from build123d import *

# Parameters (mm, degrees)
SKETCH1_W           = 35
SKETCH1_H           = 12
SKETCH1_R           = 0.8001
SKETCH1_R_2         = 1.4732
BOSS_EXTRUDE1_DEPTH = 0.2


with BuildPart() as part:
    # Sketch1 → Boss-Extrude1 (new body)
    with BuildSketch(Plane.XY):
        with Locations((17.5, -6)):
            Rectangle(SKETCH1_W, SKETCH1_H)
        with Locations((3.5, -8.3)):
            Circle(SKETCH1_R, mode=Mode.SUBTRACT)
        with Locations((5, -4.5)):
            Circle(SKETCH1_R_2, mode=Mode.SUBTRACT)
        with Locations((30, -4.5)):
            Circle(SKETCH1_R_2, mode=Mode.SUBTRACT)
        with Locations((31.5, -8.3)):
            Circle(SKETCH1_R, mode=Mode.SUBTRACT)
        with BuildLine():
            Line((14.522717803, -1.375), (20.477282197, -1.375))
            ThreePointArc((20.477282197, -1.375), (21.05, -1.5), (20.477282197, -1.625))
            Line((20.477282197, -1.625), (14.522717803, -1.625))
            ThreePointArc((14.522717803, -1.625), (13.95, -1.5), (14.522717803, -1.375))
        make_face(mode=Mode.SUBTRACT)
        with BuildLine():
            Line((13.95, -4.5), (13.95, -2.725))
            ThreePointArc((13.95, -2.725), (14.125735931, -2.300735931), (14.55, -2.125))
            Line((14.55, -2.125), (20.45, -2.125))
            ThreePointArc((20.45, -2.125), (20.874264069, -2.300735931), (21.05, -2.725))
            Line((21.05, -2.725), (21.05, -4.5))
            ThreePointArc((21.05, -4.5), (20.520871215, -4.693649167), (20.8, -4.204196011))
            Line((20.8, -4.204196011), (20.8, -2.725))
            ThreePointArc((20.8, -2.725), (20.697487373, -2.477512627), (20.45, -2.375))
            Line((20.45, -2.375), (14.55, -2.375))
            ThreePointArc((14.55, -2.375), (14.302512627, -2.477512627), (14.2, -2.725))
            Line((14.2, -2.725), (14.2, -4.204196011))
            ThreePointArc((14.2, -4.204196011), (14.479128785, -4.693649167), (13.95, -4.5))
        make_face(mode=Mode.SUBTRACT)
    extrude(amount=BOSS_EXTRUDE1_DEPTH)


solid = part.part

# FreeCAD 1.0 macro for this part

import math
import FreeCAD as App
import Part
import Sketcher
from FreeCAD import Vector
Q = App.Units.Quantity


def add_polygon(sketch, points):
    """Adds a closed chain of lines whose ends are joined by coincident constraints."""
    first, n = sketch.GeometryCount, len(points)
    for a, b in zip(points, points[1:] + points[:1]):
        sketch.addGeometry(Part.LineSegment(App.Vector(*a, 0), App.Vector(*b, 0)), False)
    for i in range(n):
        sketch.addConstraint(Sketcher.Constraint("Coincident", first + i, 2, first + (i + 1) % n, 1))

doc = App.newDocument("Part")
body = doc.addObject("PartDesign::Body", "Body")

# Sketch on XY plane
sketch1 = body.newObject("Sketcher::SketchObject", "Sketch")
sketch1.AttachmentSupport = (doc.getObject("XY_Plane"), [""])
sketch1.MapMode = "FlatFace"
add_polygon(sketch1, [(0, 0), (0, -12), (35, -12), (35, 0)])  # lines 0-3
sketch1.addGeometry(Part.Circle(Vector(3.5, -8.3, 0), Vector(0, 0, 1), 0.8001), False)  # 4
sketch1.addGeometry(Part.Circle(Vector(31.5, -8.3, 0), Vector(0, 0, 1), 0.8001), False)  # 5
sketch1.addGeometry(Part.Circle(Vector(5, -4.5, 0), Vector(0, 0, 1), 1.4732), False)  # 6
sketch1.addGeometry(Part.ArcOfCircle(Part.Circle(Vector(14.25, -4.5, 0), Vector(0, 0, 1), 0.3), math.radians(180), math.radians(459.594068)), False)  # 7
sketch1.addGeometry(Part.LineSegment(Vector(13.95, -4.5, 0), Vector(13.95, -2.725, 0)), False)  # 8
sketch1.addGeometry(Part.ArcOfCircle(Part.Circle(Vector(14.55, -2.725, 0), Vector(0, 0, 1), 0.6), math.radians(90), math.radians(180)), False)  # 9
sketch1.addGeometry(Part.LineSegment(Vector(14.55, -2.125, 0), Vector(20.45, -2.125, 0)), False)  # 10
sketch1.addGeometry(Part.ArcOfCircle(Part.Circle(Vector(20.45, -2.725, 0), Vector(0, 0, 1), 0.6), math.radians(0), math.radians(90)), False)  # 11
sketch1.addGeometry(Part.LineSegment(Vector(21.05, -2.725, 0), Vector(21.05, -4.5, 0)), False)  # 12
sketch1.addGeometry(Part.ArcOfCircle(Part.Circle(Vector(20.75, -4.5, 0), Vector(0, 0, 1), 0.3), math.radians(80.405932), math.radians(360)), False)  # 13
sketch1.addGeometry(Part.LineSegment(Vector(20.8, -4.204196, 0), Vector(20.8, -2.725, 0)), False)  # 14
sketch1.addGeometry(Part.ArcOfCircle(Part.Circle(Vector(20.45, -2.725, 0), Vector(0, 0, 1), 0.35), math.radians(0), math.radians(90)), False)  # 15
sketch1.addGeometry(Part.LineSegment(Vector(20.45, -2.375, 0), Vector(14.55, -2.375, 0)), False)  # 16
sketch1.addGeometry(Part.ArcOfCircle(Part.Circle(Vector(14.55, -2.725, 0), Vector(0, 0, 1), 0.35), math.radians(90), math.radians(180)), False)  # 17
sketch1.addGeometry(Part.LineSegment(Vector(14.2, -2.725, 0), Vector(14.2, -4.204196, 0)), False)  # 18
sketch1.addGeometry(Part.Circle(Vector(30, -4.5, 0), Vector(0, 0, 1), 1.4732), False)  # 19
sketch1.addGeometry(Part.ArcOfCircle(Part.Circle(Vector(14.25, -1.5, 0), Vector(0, 0, 1), 0.3), math.radians(24.624318), math.radians(335.375682)), False)  # 20
sketch1.addGeometry(Part.LineSegment(Vector(14.522718, -1.375, 0), Vector(20.477282, -1.375, 0)), False)  # 21
sketch1.addGeometry(Part.ArcOfCircle(Part.Circle(Vector(20.75, -1.5, 0), Vector(0, 0, 1), 0.3), math.radians(-155.375682), math.radians(155.375682)), False)  # 22
sketch1.addGeometry(Part.LineSegment(Vector(20.477282, -1.625, 0), Vector(14.522718, -1.625, 0)), False)  # 23
sketch1.addConstraint([
    Sketcher.Constraint("Tangent", 7, 1, 8, 1),
    Sketcher.Constraint("Tangent", 8, 2, 9, 2),
    Sketcher.Constraint("Tangent", 9, 1, 10, 1),
    Sketcher.Constraint("Tangent", 10, 2, 11, 2),
    Sketcher.Constraint("Tangent", 11, 1, 12, 1),
    Sketcher.Constraint("Tangent", 12, 2, 13, 2),
    Sketcher.Constraint("Coincident", 13, 1, 14, 1),
    Sketcher.Constraint("Tangent", 14, 2, 15, 1),
    Sketcher.Constraint("Tangent", 15, 2, 16, 1),
    Sketcher.Constraint("Tangent", 16, 2, 17, 1),
    Sketcher.Constraint("Tangent", 17, 2, 18, 1),
    Sketcher.Constraint("Coincident", 18, 2, 7, 2),
    Sketcher.Constraint("Coincident", 20, 1, 21, 1),
    Sketcher.Constraint("Coincident", 21, 2, 22, 2),
    Sketcher.Constraint("Coincident", 22, 1, 23, 1),
    Sketcher.Constraint("Coincident", 23, 2, 20, 2),
    Sketcher.Constraint("Vertical", 0),
    Sketcher.Constraint("Horizontal", 1),
    Sketcher.Constraint("Vertical", 2),
    Sketcher.Constraint("Horizontal", 3),
    Sketcher.Constraint("Vertical", 8),
    Sketcher.Constraint("Horizontal", 10),
    Sketcher.Constraint("Vertical", 12),
    Sketcher.Constraint("Vertical", 14),
    Sketcher.Constraint("Horizontal", 16),
    Sketcher.Constraint("Vertical", 18),
    Sketcher.Constraint("Horizontal", 21),
    Sketcher.Constraint("Horizontal", 23),
    Sketcher.Constraint("Coincident", 3, 2, -1, 1),
    Sketcher.Constraint("Coincident", 15, 3, 11, 3),
    Sketcher.Constraint("Coincident", 17, 3, 9, 3),
    Sketcher.Constraint("Equal", 4, 5),
    Sketcher.Constraint("Equal", 9, 11),
    Sketcher.Constraint("Equal", 7, 13),
    Sketcher.Constraint("Equal", 6, 19),
    Sketcher.Constraint("Equal", 13, 20),
    Sketcher.Constraint("Equal", 20, 22),
    Sketcher.Constraint("Horizontal", 4, 3, 5, 3),
    Sketcher.Constraint("Horizontal", 6, 3, 7, 3),
    Sketcher.Constraint("Horizontal", 7, 3, 13, 3),
    Sketcher.Constraint("Horizontal", 13, 3, 19, 3),
    Sketcher.Constraint("Horizontal", 20, 3, 22, 3),
    Sketcher.Constraint("Vertical", 7, 3, 20, 3),
    Sketcher.Constraint("Vertical", 13, 3, 22, 3),
    Sketcher.Constraint("Vertical", 21, 2, 22, 1),
    Sketcher.Constraint("Radius", 7, Q("0.3 mm")),
    Sketcher.Constraint("Radius", 9, Q("0.6 mm")),
    Sketcher.Constraint("DistanceX", 1, 1, 1, 2, Q("35 mm")),
    Sketcher.Constraint("DistanceY", 0, 2, 0, 1, Q("12 mm")),
    Sketcher.Constraint("Radius", 15, Q("0.35 mm")),
    Sketcher.Constraint("DistanceX", 10, 1, 10, 2, Q("5.9 mm")),
    Sketcher.Constraint("DistanceX", -1, 1, 6, 3, Q("5 mm")),
    Sketcher.Constraint("DistanceX", -1, 1, 19, 3, Q("30 mm")),
    Sketcher.Constraint("DistanceX", 4, 3, 5, 3, Q("28 mm")),
    Sketcher.Constraint("DistanceY", 7, 3, 20, 3, Q("3 mm")),
    Sketcher.Constraint("DistanceY", 16, 2, 20, 1, Q("1 mm")),
    Sketcher.Constraint("Diameter", 4, Q("1.6002 mm")),
    Sketcher.Constraint("Diameter", 6, Q("2.9464 mm")),
    Sketcher.Constraint("DistanceX", -1, 1, 4, 3, Q("3.5 mm")),
    Sketcher.Constraint("DistanceY", 4, 3, -1, 1, Q("8.3 mm")),
    Sketcher.Constraint("DistanceY", 6, 3, -1, 1, Q("4.5 mm")),
    Sketcher.Constraint("DistanceX", -1, 1, 13, 1, Q("20.8 mm")),
    Sketcher.Constraint("DistanceY", 10, 2, 22, 1, Q("0.5 mm")),
])
pad1 = body.newObject("PartDesign::Pad", "Pad")
pad1.Profile = sketch1
pad1.Length = 0.2

doc.recompute()
